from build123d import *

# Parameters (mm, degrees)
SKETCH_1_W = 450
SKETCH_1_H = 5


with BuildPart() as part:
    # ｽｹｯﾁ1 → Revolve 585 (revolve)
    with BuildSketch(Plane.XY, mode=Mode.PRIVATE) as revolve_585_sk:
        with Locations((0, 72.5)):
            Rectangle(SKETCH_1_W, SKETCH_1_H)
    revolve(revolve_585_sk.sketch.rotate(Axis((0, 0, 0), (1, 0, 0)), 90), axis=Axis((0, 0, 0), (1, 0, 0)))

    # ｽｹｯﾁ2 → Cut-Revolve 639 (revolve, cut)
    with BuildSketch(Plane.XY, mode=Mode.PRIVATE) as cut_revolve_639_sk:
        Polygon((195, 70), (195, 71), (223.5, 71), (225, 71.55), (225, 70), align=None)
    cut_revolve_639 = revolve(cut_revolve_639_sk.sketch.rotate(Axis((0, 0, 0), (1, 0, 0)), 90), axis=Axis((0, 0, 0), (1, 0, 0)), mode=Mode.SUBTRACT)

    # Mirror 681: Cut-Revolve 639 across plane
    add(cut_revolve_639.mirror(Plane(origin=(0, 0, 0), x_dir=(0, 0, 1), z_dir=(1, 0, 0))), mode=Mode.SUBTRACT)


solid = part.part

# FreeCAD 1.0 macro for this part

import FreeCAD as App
import Part
import Sketcher
Q = App.Units.Quantity

doc = App.newDocument("Part")
body = doc.addObject("PartDesign::Body", "Body")

# Sketch on XY plane
sketch1 = body.newObject("Sketcher::SketchObject", "Sketch")
sketch1.AttachmentSupport = (doc.getObject("XY_Plane"), [""])
sketch1.MapMode = "FlatFace"
sketch1.addGeometry([
    Part.LineSegment(App.Vector(-225, 75, 0), App.Vector(-225, 70, 0)),
    Part.LineSegment(App.Vector(-225, 70, 0), App.Vector(225, 70, 0)),
    Part.LineSegment(App.Vector(225, 70, 0), App.Vector(225, 75, 0)),
    Part.LineSegment(App.Vector(225, 75, 0), App.Vector(-225, 75, 0)),
], False)
sketch1.addConstraint([
    Sketcher.Constraint("Coincident", 0, 2, 1, 1),
    Sketcher.Constraint("Coincident", 1, 2, 2, 1),
    Sketcher.Constraint("Coincident", 2, 2, 3, 1),
    Sketcher.Constraint("Coincident", 3, 2, 0, 1),
    Sketcher.Constraint("Vertical", 0),
    Sketcher.Constraint("Horizontal", 1),
    Sketcher.Constraint("Vertical", 2),
    Sketcher.Constraint("Horizontal", 3),
    Sketcher.Constraint("DistanceX", 1, 1, 1, 2, Q("450 mm")),
    Sketcher.Constraint("DistanceY", 0, 2, 0, 1, Q("5 mm")),
    Sketcher.Constraint("DistanceX", 0, 2, -1, 1, Q("225 mm")),
    Sketcher.Constraint("DistanceY", -1, 1, 0, 2, Q("70 mm")),
])
revolution = body.newObject("PartDesign::Revolution", "Revolution")
revolution.Profile = sketch1
revolution.ReferenceAxis = (sketch1, ["H_Axis"])
revolution.Angle = 360

# Sketch on XY plane
sketch2 = body.newObject("Sketcher::SketchObject", "Sketch001")
sketch2.AttachmentSupport = (doc.getObject("XY_Plane"), [""])
sketch2.MapMode = "FlatFace"
sketch2.addGeometry([
    Part.LineSegment(App.Vector(195, 71, 0), App.Vector(195, 70, 0)),  # 0
    Part.LineSegment(App.Vector(195, 70, 0), App.Vector(225, 70, 0)),  # 1
    Part.LineSegment(App.Vector(225, 70, 0), App.Vector(225, 71.55, 0)),  # 2
    Part.LineSegment(App.Vector(225, 71.55, 0), App.Vector(223.5, 71, 0)),  # 3
    Part.LineSegment(App.Vector(223.5, 71, 0), App.Vector(195, 71, 0)),  # 4
], False)
sketch2.addConstraint([
    Sketcher.Constraint("Coincident", 0, 2, 1, 1),
    Sketcher.Constraint("Coincident", 1, 2, 2, 1),
    Sketcher.Constraint("Coincident", 2, 2, 3, 1),
    Sketcher.Constraint("Coincident", 3, 2, 4, 1),
    Sketcher.Constraint("Coincident", 4, 2, 0, 1),
    Sketcher.Constraint("Vertical", 0),
    Sketcher.Constraint("Horizontal", 1),
    Sketcher.Constraint("Vertical", 2),
    Sketcher.Constraint("Horizontal", 4),
    Sketcher.Constraint("DistanceX", 1, 1, 1, 2, Q("30 mm")),
    Sketcher.Constraint("DistanceY", 0, 2, 0, 1, Q("1 mm")),
    Sketcher.Constraint("DistanceX", 4, 2, 4, 1, Q("28.5 mm")),
    Sketcher.Constraint("DistanceX", -1, 1, 0, 2, Q("195 mm")),
    Sketcher.Constraint("DistanceY", -1, 1, 0, 2, Q("70 mm")),
    Sketcher.Constraint("DistanceY", 2, 1, 2, 2, Q("1.55 mm")),
])
groove = body.newObject("PartDesign::Groove", "Groove")
groove.Profile = sketch2
groove.ReferenceAxis = (sketch2, ["H_Axis"])
groove.Angle = 360
doc.recompute()

mirrored = body.newObject("PartDesign::Mirrored", "Mirrored")
mirrored.Originals = [groove]
mirrored.MirrorPlane = (doc.getObject("YZ_Plane"), [""])
body.Tip = mirrored

doc.recompute()
